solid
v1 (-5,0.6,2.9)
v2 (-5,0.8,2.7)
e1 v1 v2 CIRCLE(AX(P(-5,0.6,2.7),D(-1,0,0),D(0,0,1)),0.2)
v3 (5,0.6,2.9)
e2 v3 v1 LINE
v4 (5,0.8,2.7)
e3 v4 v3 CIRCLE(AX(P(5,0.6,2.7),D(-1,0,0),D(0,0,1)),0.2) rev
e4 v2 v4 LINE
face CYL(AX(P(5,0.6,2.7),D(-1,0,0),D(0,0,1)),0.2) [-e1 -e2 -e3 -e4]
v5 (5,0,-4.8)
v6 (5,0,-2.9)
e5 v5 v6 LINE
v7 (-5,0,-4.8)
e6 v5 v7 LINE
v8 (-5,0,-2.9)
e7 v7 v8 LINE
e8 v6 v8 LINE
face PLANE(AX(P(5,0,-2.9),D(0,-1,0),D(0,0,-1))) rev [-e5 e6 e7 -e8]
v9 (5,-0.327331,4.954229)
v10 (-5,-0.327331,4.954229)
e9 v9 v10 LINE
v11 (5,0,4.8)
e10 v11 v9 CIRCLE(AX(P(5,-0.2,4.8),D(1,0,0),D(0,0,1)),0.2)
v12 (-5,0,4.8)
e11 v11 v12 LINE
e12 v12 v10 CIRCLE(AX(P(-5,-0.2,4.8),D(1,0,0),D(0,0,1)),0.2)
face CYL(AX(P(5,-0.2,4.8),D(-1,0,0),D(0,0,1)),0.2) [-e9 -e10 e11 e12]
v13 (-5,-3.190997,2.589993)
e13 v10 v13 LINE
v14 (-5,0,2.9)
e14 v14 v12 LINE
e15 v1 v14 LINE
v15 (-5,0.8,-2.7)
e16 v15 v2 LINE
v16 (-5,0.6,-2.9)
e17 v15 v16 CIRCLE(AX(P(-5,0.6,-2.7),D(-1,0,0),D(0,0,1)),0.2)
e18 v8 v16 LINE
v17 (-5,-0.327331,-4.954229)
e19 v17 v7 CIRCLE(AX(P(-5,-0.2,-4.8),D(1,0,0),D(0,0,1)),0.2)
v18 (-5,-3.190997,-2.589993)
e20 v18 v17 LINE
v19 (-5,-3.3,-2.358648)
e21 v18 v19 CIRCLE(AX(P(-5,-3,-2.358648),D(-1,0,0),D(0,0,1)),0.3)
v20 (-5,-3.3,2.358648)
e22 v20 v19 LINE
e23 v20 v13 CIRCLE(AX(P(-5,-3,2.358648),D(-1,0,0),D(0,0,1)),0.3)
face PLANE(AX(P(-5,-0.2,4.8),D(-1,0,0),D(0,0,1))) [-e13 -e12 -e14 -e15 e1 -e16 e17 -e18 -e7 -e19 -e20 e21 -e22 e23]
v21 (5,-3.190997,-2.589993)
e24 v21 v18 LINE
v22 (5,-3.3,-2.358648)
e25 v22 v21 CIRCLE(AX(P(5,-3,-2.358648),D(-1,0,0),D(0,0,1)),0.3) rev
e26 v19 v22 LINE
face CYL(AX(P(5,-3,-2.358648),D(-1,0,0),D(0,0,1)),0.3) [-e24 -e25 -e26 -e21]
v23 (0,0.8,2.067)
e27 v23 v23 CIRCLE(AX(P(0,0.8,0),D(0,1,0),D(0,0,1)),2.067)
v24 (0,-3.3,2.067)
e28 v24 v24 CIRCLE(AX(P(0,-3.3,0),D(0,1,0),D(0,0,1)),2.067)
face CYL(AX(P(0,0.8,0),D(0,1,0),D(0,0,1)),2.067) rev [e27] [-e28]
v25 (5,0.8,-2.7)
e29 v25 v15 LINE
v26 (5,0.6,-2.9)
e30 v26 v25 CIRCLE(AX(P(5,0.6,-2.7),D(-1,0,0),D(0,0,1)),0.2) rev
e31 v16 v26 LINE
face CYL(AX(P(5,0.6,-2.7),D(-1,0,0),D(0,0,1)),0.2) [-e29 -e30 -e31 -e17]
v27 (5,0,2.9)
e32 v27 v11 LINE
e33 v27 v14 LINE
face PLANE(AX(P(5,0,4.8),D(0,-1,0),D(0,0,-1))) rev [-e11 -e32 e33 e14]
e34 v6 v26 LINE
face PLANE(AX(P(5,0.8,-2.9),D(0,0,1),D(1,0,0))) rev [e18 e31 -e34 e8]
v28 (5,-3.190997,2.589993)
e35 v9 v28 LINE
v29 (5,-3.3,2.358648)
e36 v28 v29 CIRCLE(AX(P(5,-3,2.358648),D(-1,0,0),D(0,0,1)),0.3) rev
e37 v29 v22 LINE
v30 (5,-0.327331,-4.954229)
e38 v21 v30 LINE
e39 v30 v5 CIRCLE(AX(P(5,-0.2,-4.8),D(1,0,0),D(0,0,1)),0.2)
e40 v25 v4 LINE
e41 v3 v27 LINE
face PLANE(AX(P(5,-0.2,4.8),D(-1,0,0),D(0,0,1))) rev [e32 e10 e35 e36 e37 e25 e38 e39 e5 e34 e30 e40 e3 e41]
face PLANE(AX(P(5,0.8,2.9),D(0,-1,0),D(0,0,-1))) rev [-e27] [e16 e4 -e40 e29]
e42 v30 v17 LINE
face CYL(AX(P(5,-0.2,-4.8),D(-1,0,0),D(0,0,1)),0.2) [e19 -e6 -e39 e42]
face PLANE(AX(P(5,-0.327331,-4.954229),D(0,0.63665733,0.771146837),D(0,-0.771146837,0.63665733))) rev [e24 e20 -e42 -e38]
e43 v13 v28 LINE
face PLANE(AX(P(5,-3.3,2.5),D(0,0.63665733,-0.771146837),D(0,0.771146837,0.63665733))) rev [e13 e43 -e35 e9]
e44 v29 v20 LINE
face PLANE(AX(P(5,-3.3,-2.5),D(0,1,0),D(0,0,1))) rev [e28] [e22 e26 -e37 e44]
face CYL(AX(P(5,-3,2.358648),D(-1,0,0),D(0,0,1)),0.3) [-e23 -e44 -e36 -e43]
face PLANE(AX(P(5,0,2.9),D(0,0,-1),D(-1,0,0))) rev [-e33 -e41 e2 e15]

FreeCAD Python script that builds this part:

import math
import FreeCAD as App
import Part
import Sketcher
from FreeCAD import Vector
Q = App.Units.Quantity


def edges_at(feature, points):
    """Names of the edges that pass closest to the given points."""
    edges = feature.Shape.Edges
    near = lambda p: min(range(len(edges)), key=lambda i: edges[i].distToShape(Part.Vertex(*p))[0])
    return sorted({f"Edge{near(p) + 1}" for p in points})

doc = App.newDocument("Part")
body = doc.addObject("PartDesign::Body", "Body")

# Sketch on YZ plane
sketch1 = doc.addObject("Sketcher::SketchObject", "Sketch")
body.addObject(sketch1)
sketch1.AttachmentSupport = (doc.YZ_Plane, [""])
sketch1.MapMode = "FlatFace"
sketch1.addGeometry(Part.LineSegment(Vector(-3.3, 2.5, 0), Vector(-3.3, -2.5, 0)), False)
sketch1.addGeometry(Part.LineSegment(Vector(-3.3, -2.5, 0), Vector(-0.33, -4.95, 0)), False)
sketch1.addGeometry(Part.ArcOfCircle(Part.Circle(Vector(-0.2, -4.8, 0), Vector(0, 0, 1), 0.2), math.radians(-130), math.radians(0)), False)
sketch1.addGeometry(Part.LineSegment(Vector(0, -4.8, 0), Vector(0, -2.9, 0)), False)
sketch1.addGeometry(Part.LineSegment(Vector(0, -2.9, 0), Vector(0.8, -2.9, 0)), False)
sketch1.addGeometry(Part.LineSegment(Vector(0.8, -2.9, 0), Vector(0.8, 2.9, 0)), False)
sketch1.addGeometry(Part.LineSegment(Vector(0.8, 2.9, 0), Vector(0, 2.9, 0)), False)
sketch1.addGeometry(Part.LineSegment(Vector(0, 2.9, 0), Vector(0, 4.8, 0)), False)
sketch1.addGeometry(Part.ArcOfCircle(Part.Circle(Vector(-0.2, 4.8, 0), Vector(0, 0, 1), 0.2), math.radians(0), math.radians(130)), False)
sketch1.addGeometry(Part.LineSegment(Vector(-0.33, 4.95, 0), Vector(-3.3, 2.5, 0)), False)
sketch1.addConstraint(Sketcher.Constraint("Coincident", 0, 2, 1, 1))
sketch1.addConstraint(Sketcher.Constraint("Tangent", 1, 2, 2, 1))
sketch1.addConstraint(Sketcher.Constraint("Tangent", 2, 2, 3, 1))
sketch1.addConstraint(Sketcher.Constraint("Coincident", 3, 2, 4, 1))
sketch1.addConstraint(Sketcher.Constraint("Coincident", 4, 2, 5, 1))
sketch1.addConstraint(Sketcher.Constraint("Coincident", 5, 2, 6, 1))
sketch1.addConstraint(Sketcher.Constraint("Coincident", 6, 2, 7, 1))
sketch1.addConstraint(Sketcher.Constraint("Tangent", 7, 2, 8, 1))
sketch1.addConstraint(Sketcher.Constraint("Tangent", 8, 2, 9, 1))
sketch1.addConstraint(Sketcher.Constraint("Coincident", 9, 2, 0, 1))
sketch1.addConstraint(Sketcher.Constraint("Vertical", 0))
sketch1.addConstraint(Sketcher.Constraint("Vertical", 3))
sketch1.addConstraint(Sketcher.Constraint("Horizontal", 4))
sketch1.addConstraint(Sketcher.Constraint("Vertical", 5))
sketch1.addConstraint(Sketcher.Constraint("Horizontal", 6))
sketch1.addConstraint(Sketcher.Constraint("Vertical", 7))
sketch1.addConstraint(Sketcher.Constraint("Equal", 2, 8))
sketch1.addConstraint(Sketcher.Constraint("Symmetric", 3, 2, 6, 2, -1, 1))
sketch1.addConstraint(Sketcher.Constraint("Symmetric", 2, 3, 8, 3, -1))
sketch1.addConstraint(Sketcher.Constraint("Vertical", 1, 2, 8, 2))
sketch1.addConstraint(Sketcher.Constraint("Radius", 2, Q("0.2 mm")))
sketch1.addConstraint(Sketcher.Constraint("DistanceY", 0, 2, 0, 1, Q("5 mm")))
sketch1.addConstraint(Sketcher.Constraint("DistanceX", 4, 1, 4, 2, Q("0.8 mm")))
sketch1.addConstraint(Sketcher.Constraint("DistanceY", 3, 1, 3, 2, Q("1.9 mm")))
sketch1.addConstraint(Sketcher.Constraint("DistanceY", 5, 1, 5, 2, Q("5.8 mm")))
sketch1.addConstraint(Sketcher.Constraint("DistanceX", 0, 2, -1, 1, Q("3.3 mm")))
pad1 = doc.addObject("PartDesign::Pad", "Pad")
body.addObject(pad1)
pad1.Profile = sketch1
pad1.Length = 10
pad1.Midplane = True
doc.recompute()

fillet = doc.addObject("PartDesign::Fillet", "Fillet")
body.addObject(fillet)
fillet.Base = (pad1, edges_at(pad1, [(0, -3.3, -2.5), (0, -3.3, 2.5)]))
fillet.Radius = 0.3
doc.recompute()

fillet2 = doc.addObject("PartDesign::Fillet", "Fillet001")
body.addObject(fillet2)
fillet2.Base = (fillet, edges_at(fillet, [(0, 0.8, 2.9), (0, 0.8, -2.9)]))
fillet2.Radius = 0.2

# Sketch on XZ plane
sketch2 = doc.addObject("Sketcher::SketchObject", "Sketch001")
body.addObject(sketch2)
sketch2.AttachmentSupport = (doc.XZ_Plane, [""])
sketch2.MapMode = "FlatFace"
sketch2.AttachmentOffset = App.Placement(Vector(0, 0, -0.8), App.Rotation())
sketch2.addGeometry(Part.Circle(Vector(0, 0, 0), Vector(0, 0, 1), 2.1), False)
sketch2.addConstraint(Sketcher.Constraint("Coincident", 0, 3, -1, 1))
sketch2.addConstraint(Sketcher.Constraint("Diameter", 0, Q("4.134 mm")))
doc.recompute()
hole = doc.addObject("PartDesign::Hole", "Hole")
body.addObject(hole)
hole.Profile = sketch2
hole.ThreadType = "None"
hole.Diameter = 4.134
hole.DepthType = "ThroughAll"
hole.Reversed = True

doc.recompute()
